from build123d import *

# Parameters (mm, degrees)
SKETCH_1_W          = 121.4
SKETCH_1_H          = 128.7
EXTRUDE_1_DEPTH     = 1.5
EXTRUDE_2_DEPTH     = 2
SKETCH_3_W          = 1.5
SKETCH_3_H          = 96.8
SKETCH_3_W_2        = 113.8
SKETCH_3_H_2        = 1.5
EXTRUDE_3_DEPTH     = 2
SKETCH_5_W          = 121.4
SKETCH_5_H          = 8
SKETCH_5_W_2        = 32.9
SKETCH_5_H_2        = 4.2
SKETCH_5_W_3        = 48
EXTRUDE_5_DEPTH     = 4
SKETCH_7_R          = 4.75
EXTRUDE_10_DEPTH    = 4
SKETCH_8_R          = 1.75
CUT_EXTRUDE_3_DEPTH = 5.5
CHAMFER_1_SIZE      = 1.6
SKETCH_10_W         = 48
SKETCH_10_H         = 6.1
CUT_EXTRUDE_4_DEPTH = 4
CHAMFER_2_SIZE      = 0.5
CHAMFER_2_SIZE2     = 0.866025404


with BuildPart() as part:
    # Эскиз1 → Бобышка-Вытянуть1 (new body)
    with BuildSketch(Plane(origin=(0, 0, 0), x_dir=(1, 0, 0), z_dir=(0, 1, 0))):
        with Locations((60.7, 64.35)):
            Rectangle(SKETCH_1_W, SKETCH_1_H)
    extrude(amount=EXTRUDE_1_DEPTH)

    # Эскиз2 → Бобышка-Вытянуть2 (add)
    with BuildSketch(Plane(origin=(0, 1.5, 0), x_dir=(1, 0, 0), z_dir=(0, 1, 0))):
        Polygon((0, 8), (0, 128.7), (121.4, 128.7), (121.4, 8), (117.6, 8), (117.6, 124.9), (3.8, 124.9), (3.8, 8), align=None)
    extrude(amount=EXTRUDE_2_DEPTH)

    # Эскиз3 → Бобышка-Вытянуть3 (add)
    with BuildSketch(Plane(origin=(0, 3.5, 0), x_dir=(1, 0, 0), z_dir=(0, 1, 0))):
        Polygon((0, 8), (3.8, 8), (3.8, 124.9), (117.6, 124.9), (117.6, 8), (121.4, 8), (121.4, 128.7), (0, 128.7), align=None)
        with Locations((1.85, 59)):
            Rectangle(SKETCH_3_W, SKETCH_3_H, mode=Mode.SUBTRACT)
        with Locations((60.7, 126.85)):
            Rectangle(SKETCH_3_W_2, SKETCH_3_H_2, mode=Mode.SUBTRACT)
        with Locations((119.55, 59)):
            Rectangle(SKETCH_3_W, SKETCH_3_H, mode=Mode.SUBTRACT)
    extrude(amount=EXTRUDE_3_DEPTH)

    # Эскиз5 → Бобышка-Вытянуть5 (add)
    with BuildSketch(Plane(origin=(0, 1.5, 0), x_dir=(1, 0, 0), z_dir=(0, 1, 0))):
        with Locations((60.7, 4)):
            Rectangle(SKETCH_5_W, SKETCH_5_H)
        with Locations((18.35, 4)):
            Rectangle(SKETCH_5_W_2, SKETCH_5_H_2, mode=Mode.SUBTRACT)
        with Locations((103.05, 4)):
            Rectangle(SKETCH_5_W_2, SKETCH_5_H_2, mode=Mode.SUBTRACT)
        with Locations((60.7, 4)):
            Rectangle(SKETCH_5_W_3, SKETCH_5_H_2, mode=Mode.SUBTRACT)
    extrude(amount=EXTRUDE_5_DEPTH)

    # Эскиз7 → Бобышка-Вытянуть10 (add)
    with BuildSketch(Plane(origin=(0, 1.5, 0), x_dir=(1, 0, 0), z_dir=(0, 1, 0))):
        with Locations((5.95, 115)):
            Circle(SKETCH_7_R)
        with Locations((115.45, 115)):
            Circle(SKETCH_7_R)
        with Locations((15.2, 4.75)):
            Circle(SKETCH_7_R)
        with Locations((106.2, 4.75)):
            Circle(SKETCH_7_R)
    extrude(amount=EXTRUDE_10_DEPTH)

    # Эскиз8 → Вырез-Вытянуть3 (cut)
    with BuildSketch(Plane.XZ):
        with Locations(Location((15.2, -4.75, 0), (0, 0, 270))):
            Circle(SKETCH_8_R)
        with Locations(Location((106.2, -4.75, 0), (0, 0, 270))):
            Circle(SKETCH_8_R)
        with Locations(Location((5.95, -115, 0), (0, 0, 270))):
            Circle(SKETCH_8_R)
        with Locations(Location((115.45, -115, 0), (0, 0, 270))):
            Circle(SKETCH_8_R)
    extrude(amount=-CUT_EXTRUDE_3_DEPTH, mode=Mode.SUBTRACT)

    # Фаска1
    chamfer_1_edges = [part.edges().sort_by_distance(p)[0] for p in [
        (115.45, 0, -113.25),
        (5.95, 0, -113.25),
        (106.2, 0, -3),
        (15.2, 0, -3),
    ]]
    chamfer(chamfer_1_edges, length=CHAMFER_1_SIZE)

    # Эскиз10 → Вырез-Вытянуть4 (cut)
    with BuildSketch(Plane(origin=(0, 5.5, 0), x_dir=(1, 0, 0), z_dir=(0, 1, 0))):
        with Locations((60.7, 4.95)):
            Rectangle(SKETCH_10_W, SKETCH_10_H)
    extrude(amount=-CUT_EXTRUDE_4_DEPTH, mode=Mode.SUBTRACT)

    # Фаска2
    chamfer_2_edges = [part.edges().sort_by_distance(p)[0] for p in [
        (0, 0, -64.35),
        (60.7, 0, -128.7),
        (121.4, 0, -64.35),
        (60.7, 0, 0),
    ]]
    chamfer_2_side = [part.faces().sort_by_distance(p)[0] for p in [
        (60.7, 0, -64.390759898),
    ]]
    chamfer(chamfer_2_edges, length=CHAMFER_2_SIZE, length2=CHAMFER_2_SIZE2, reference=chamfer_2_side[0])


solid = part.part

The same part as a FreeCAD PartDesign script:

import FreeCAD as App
import Part
import Sketcher
from FreeCAD import Vector


def edges_at(feature, points):
    """Names of the edges that pass closest to the given points."""
    edges = feature.Shape.Edges
    near = lambda p: min(range(len(edges)), key=lambda i: edges[i].distToShape(Part.Vertex(*p))[0])
    return sorted({f"Edge{near(p) + 1}" for p in points})

doc = App.newDocument("Part")
body = doc.addObject("PartDesign::Body", "Body")

# Sketch on XZ plane
sketch1 = body.newObject("Sketcher::SketchObject", "Sketch")
sketch1.AttachmentSupport = (doc.getObject("XZ_Plane"), [""])
sketch1.MapMode = "FlatFace"
sketch1.addGeometry(Part.LineSegment(Vector(0, -129, 0), Vector(0, 0, 0)), False)
sketch1.addGeometry(Part.LineSegment(Vector(0, 0, 0), Vector(121, 0, 0)), False)
sketch1.addGeometry(Part.LineSegment(Vector(121, 0, 0), Vector(121, -129, 0)), False)
sketch1.addGeometry(Part.LineSegment(Vector(121, -129, 0), Vector(0, -129, 0)), False)
sketch1.addConstraint(Sketcher.Constraint("Coincident", 0, 2, 1, 1))
sketch1.addConstraint(Sketcher.Constraint("Coincident", 1, 2, 2, 1))
sketch1.addConstraint(Sketcher.Constraint("Coincident", 2, 2, 3, 1))
sketch1.addConstraint(Sketcher.Constraint("Coincident", 3, 2, 0, 1))
sketch1.addConstraint(Sketcher.Constraint("Vertical", 0))
sketch1.addConstraint(Sketcher.Constraint("Horizontal", 1))
sketch1.addConstraint(Sketcher.Constraint("Vertical", 2))
sketch1.addConstraint(Sketcher.Constraint("Horizontal", 3))
sketch1.addConstraint(Sketcher.Constraint("Coincident", 0, 2, -1, 1))
sketch1.addConstraint(Sketcher.Constraint("DistanceX", 1, 1, 1, 2, 121.4))
sketch1.addConstraint(Sketcher.Constraint("DistanceY", 0, 1, 0, 2, 128.7))
pad1 = body.newObject("PartDesign::Pad", "Pad")
pad1.Profile = sketch1
pad1.Length = 1.5
pad1.Reversed = True

# Sketch on XZ plane
sketch2 = body.newObject("Sketcher::SketchObject", "Sketch001")
sketch2.AttachmentSupport = (doc.getObject("XZ_Plane"), [""])
sketch2.MapMode = "FlatFace"
sketch2.AttachmentOffset = App.Placement(Vector(0, 0, -1.5), App.Rotation())
sketch2.addGeometry(Part.LineSegment(Vector(0, -128.7, 0), Vector(0, -8, 0)), False)
sketch2.addGeometry(Part.LineSegment(Vector(0, -8, 0), Vector(3.8, -8, 0)), False)
sketch2.addGeometry(Part.LineSegment(Vector(3.8, -8, 0), Vector(3.8, -124.9, 0)), False)
sketch2.addGeometry(Part.LineSegment(Vector(3.8, -124.9, 0), Vector(117.6, -124.9, 0)), False)
sketch2.addGeometry(Part.LineSegment(Vector(117.6, -124.9, 0), Vector(117.6, -8, 0)), False)
sketch2.addGeometry(Part.LineSegment(Vector(117.6, -8, 0), Vector(121.4, -8, 0)), False)
sketch2.addGeometry(Part.LineSegment(Vector(121.4, -8, 0), Vector(121.4, -128.7, 0)), False)
sketch2.addGeometry(Part.LineSegment(Vector(121.4, -128.7, 0), Vector(0, -128.7, 0)), False)
sketch2.addConstraint(Sketcher.Constraint("Coincident", 0, 2, 1, 1))
sketch2.addConstraint(Sketcher.Constraint("Coincident", 1, 2, 2, 1))
sketch2.addConstraint(Sketcher.Constraint("Coincident", 2, 2, 3, 1))
sketch2.addConstraint(Sketcher.Constraint("Coincident", 3, 2, 4, 1))
sketch2.addConstraint(Sketcher.Constraint("Coincident", 4, 2, 5, 1))
sketch2.addConstraint(Sketcher.Constraint("Coincident", 5, 2, 6, 1))
sketch2.addConstraint(Sketcher.Constraint("Coincident", 6, 2, 7, 1))
sketch2.addConstraint(Sketcher.Constraint("Coincident", 7, 2, 0, 1))
sketch2.addConstraint(Sketcher.Constraint("Vertical", 0))
sketch2.addConstraint(Sketcher.Constraint("Horizontal", 1))
sketch2.addConstraint(Sketcher.Constraint("Vertical", 2))
sketch2.addConstraint(Sketcher.Constraint("Horizontal", 3))
sketch2.addConstraint(Sketcher.Constraint("Vertical", 4))
sketch2.addConstraint(Sketcher.Constraint("Horizontal", 5))
sketch2.addConstraint(Sketcher.Constraint("Vertical", 6))
sketch2.addConstraint(Sketcher.Constraint("Horizontal", 7))
sketch2.addConstraint(Sketcher.Constraint("PointOnObject", 0, 2, -2))
sketch2.addConstraint(Sketcher.Constraint("Horizontal", 1, 2, 4, 2))
sketch2.addConstraint(Sketcher.Constraint("Equal", 1, 5))
sketch2.addConstraint(Sketcher.Constraint("DistanceX", 1, 1, 1, 2, 3.8))
sketch2.addConstraint(Sketcher.Constraint("DistanceX", 3, 1, 3, 2, 113.8))
sketch2.addConstraint(Sketcher.Constraint("DistanceY", 0, 1, 0, 2, 120.7))
sketch2.addConstraint(Sketcher.Constraint("DistanceY", 2, 2, 2, 1, 116.9))
sketch2.addConstraint(Sketcher.Constraint("DistanceY", 0, 2, -1, 1, 8.0))
pad2 = body.newObject("PartDesign::Pad", "Pad001")
pad2.Profile = sketch2
pad2.Length = 2
pad2.Reversed = True

# Sketch on XZ plane
sketch3 = body.newObject("Sketcher::SketchObject", "Sketch002")
sketch3.AttachmentSupport = (doc.getObject("XZ_Plane"), [""])
sketch3.MapMode = "FlatFace"
sketch3.AttachmentOffset = App.Placement(Vector(0, 0, -3.5), App.Rotation())
sketch3.addGeometry(Part.LineSegment(Vector(0, -8, 0), Vector(3.8, -8, 0)), False)
sketch3.addGeometry(Part.LineSegment(Vector(3.8, -8, 0), Vector(3.8, -124.9, 0)), False)
sketch3.addGeometry(Part.LineSegment(Vector(3.8, -124.9, 0), Vector(117.6, -124.9, 0)), False)
sketch3.addGeometry(Part.LineSegment(Vector(117.6, -124.9, 0), Vector(117.6, -8, 0)), False)
sketch3.addGeometry(Part.LineSegment(Vector(117.6, -8, 0), Vector(121.4, -8, 0)), False)
sketch3.addGeometry(Part.LineSegment(Vector(121.4, -8, 0), Vector(121.4, -128.7, 0)), False)
sketch3.addGeometry(Part.LineSegment(Vector(121.4, -128.7, 0), Vector(0, -128.7, 0)), False)
sketch3.addGeometry(Part.LineSegment(Vector(0, -128.7, 0), Vector(0, -8, 0)), False)
sketch3.addGeometry(Part.LineSegment(Vector(2.6, -10.6, 0), Vector(1.1, -10.6, 0)), False)
sketch3.addGeometry(Part.LineSegment(Vector(1.1, -10.6, 0), Vector(1.1, -107.4, 0)), False)
sketch3.addGeometry(Part.LineSegment(Vector(1.1, -107.4, 0), Vector(2.6, -107.4, 0)), False)
sketch3.addGeometry(Part.LineSegment(Vector(2.6, -107.4, 0), Vector(2.6, -10.6, 0)), False)
sketch3.addGeometry(Part.LineSegment(Vector(120.3, -10.6, 0), Vector(118.8, -10.6, 0)), False)
sketch3.addGeometry(Part.LineSegment(Vector(118.8, -10.6, 0), Vector(118.8, -107.4, 0)), False)
sketch3.addGeometry(Part.LineSegment(Vector(118.8, -107.4, 0), Vector(120.3, -107.4, 0)), False)
sketch3.addGeometry(Part.LineSegment(Vector(120.3, -107.4, 0), Vector(120.3, -10.6, 0)), False)
sketch3.addGeometry(Part.LineSegment(Vector(117.6, -126.1, 0), Vector(3.8, -126.1, 0)), False)
sketch3.addGeometry(Part.LineSegment(Vector(3.8, -126.1, 0), Vector(3.8, -127.6, 0)), False)
sketch3.addGeometry(Part.LineSegment(Vector(3.8, -127.6, 0), Vector(117.6, -127.6, 0)), False)
sketch3.addGeometry(Part.LineSegment(Vector(117.6, -127.6, 0), Vector(117.6, -126.1, 0)), False)
sketch3.addConstraint(Sketcher.Constraint("Coincident", 0, 2, 1, 1))
sketch3.addConstraint(Sketcher.Constraint("Coincident", 1, 2, 2, 1))
sketch3.addConstraint(Sketcher.Constraint("Coincident", 2, 2, 3, 1))
sketch3.addConstraint(Sketcher.Constraint("Coincident", 3, 2, 4, 1))
sketch3.addConstraint(Sketcher.Constraint("Coincident", 4, 2, 5, 1))
sketch3.addConstraint(Sketcher.Constraint("Coincident", 5, 2, 6, 1))
sketch3.addConstraint(Sketcher.Constraint("Coincident", 6, 2, 7, 1))
sketch3.addConstraint(Sketcher.Constraint("Coincident", 7, 2, 0, 1))
sketch3.addConstraint(Sketcher.Constraint("Coincident", 8, 2, 9, 1))
sketch3.addConstraint(Sketcher.Constraint("Coincident", 9, 2, 10, 1))
sketch3.addConstraint(Sketcher.Constraint("Coincident", 10, 2, 11, 1))
sketch3.addConstraint(Sketcher.Constraint("Coincident", 11, 2, 8, 1))
sketch3.addConstraint(Sketcher.Constraint("Coincident", 12, 2, 13, 1))
sketch3.addConstraint(Sketcher.Constraint("Coincident", 13, 2, 14, 1))
sketch3.addConstraint(Sketcher.Constraint("Coincident", 14, 2, 15, 1))
sketch3.addConstraint(Sketcher.Constraint("Coincident", 15, 2, 12, 1))
sketch3.addConstraint(Sketcher.Constraint("Coincident", 16, 2, 17, 1))
sketch3.addConstraint(Sketcher.Constraint("Coincident", 17, 2, 18, 1))
sketch3.addConstraint(Sketcher.Constraint("Coincident", 18, 2, 19, 1))
sketch3.addConstraint(Sketcher.Constraint("Coincident", 19, 2, 16, 1))
sketch3.addConstraint(Sketcher.Constraint("Horizontal", 0))
sketch3.addConstraint(Sketcher.Constraint("Vertical", 1))
sketch3.addConstraint(Sketcher.Constraint("Horizontal", 2))
sketch3.addConstraint(Sketcher.Constraint("Vertical", 3))
sketch3.addConstraint(Sketcher.Constraint("Horizontal", 4))
sketch3.addConstraint(Sketcher.Constraint("Vertical", 5))
sketch3.addConstraint(Sketcher.Constraint("Horizontal", 6))
sketch3.addConstraint(Sketcher.Constraint("Vertical", 7))
sketch3.addConstraint(Sketcher.Constraint("Horizontal", 8))
sketch3.addConstraint(Sketcher.Constraint("Vertical", 9))
sketch3.addConstraint(Sketcher.Constraint("Horizontal", 10))
sketch3.addConstraint(Sketcher.Constraint("Vertical", 11))
sketch3.addConstraint(Sketcher.Constraint("Horizontal", 12))
sketch3.addConstraint(Sketcher.Constraint("Vertical", 13))
sketch3.addConstraint(Sketcher.Constraint("Horizontal", 14))
sketch3.addConstraint(Sketcher.Constraint("Vertical", 15))
sketch3.addConstraint(Sketcher.Constraint("Horizontal", 16))
sketch3.addConstraint(Sketcher.Constraint("Vertical", 17))
sketch3.addConstraint(Sketcher.Constraint("Horizontal", 18))
sketch3.addConstraint(Sketcher.Constraint("Vertical", 19))
sketch3.addConstraint(Sketcher.Constraint("PointOnObject", 6, 2, -2))
sketch3.addConstraint(Sketcher.Constraint("Horizontal", 0, 2, 3, 2))
sketch3.addConstraint(Sketcher.Constraint("Horizontal", 11, 2, 12, 2))
sketch3.addConstraint(Sketcher.Constraint("Horizontal", 10, 2, 13, 2))
sketch3.addConstraint(Sketcher.Constraint("Vertical", 1, 2, 16, 2))
sketch3.addConstraint(Sketcher.Constraint("Vertical", 3, 2, 18, 2))
sketch3.addConstraint(Sketcher.Constraint("Equal", 0, 4))
sketch3.addConstraint(Sketcher.Constraint("Equal", 10, 12))
sketch3.addConstraint(Sketcher.Constraint("Equal", 14, 17))
sketch3.addConstraint(Sketcher.Constraint("DistanceX", 0, 1, 0, 2, 3.8))
sketch3.addConstraint(Sketcher.Constraint("DistanceX", 2, 1, 2, 2, 113.8))
sketch3.addConstraint(Sketcher.Constraint("DistanceX", 8, 2, 8, 1, 1.5))
sketch3.addConstraint(Sketcher.Constraint("DistanceY", 1, 2, 1, 1, 116.9))
sketch3.addConstraint(Sketcher.Constraint("DistanceY", 5, 2, 5, 1, 120.7))
sketch3.addConstraint(Sketcher.Constraint("DistanceY", 9, 2, 9, 1, 96.8))
sketch3.addConstraint(Sketcher.Constraint("DistanceY", 0, 2, -1, 1, 8.0))
sketch3.addConstraint(Sketcher.Constraint("DistanceX", 0, 2, 12, 2, 115.0))
sketch3.addConstraint(Sketcher.Constraint("DistanceX", -1, 1, 8, 2, 1.1))
sketch3.addConstraint(Sketcher.Constraint("DistanceY", 8, 2, -1, 1, 10.6))
sketch3.addConstraint(Sketcher.Constraint("DistanceY", 16, 2, -1, 1, 126.1))
pad3 = body.newObject("PartDesign::Pad", "Pad002")
pad3.Profile = sketch3
pad3.Length = 2
pad3.Reversed = True

# Sketch on XZ plane
sketch4 = body.newObject("Sketcher::SketchObject", "Sketch003")
sketch4.AttachmentSupport = (doc.getObject("XZ_Plane"), [""])
sketch4.MapMode = "FlatFace"
sketch4.AttachmentOffset = App.Placement(Vector(0, 0, -1.5), App.Rotation())
sketch4.addGeometry(Part.LineSegment(Vector(0, -8, 0), Vector(0, 0, 0)), False)
sketch4.addGeometry(Part.LineSegment(Vector(0, 0, 0), Vector(121.4, 0, 0)), False)
sketch4.addGeometry(Part.LineSegment(Vector(121.4, 0, 0), Vector(121.4, -8, 0)), False)
sketch4.addGeometry(Part.LineSegment(Vector(121.4, -8, 0), Vector(0, -8, 0)), False)
sketch4.addGeometry(Part.LineSegment(Vector(34.8, -1.9, 0), Vector(1.9, -1.9, 0)), False)
sketch4.addGeometry(Part.LineSegment(Vector(1.9, -1.9, 0), Vector(1.9, -6.1, 0)), False)
sketch4.addGeometry(Part.LineSegment(Vector(1.9, -6.1, 0), Vector(34.8, -6.1, 0)), False)
sketch4.addGeometry(Part.LineSegment(Vector(34.8, -6.1, 0), Vector(34.8, -1.9, 0)), False)
sketch4.addGeometry(Part.LineSegment(Vector(84.7, -1.9, 0), Vector(36.7, -1.9, 0)), False)
sketch4.addGeometry(Part.LineSegment(Vector(36.7, -1.9, 0), Vector(36.7, -6.1, 0)), False)
sketch4.addGeometry(Part.LineSegment(Vector(36.7, -6.1, 0), Vector(84.7, -6.1, 0)), False)
sketch4.addGeometry(Part.LineSegment(Vector(84.7, -6.1, 0), Vector(84.7, -1.9, 0)), False)
sketch4.addGeometry(Part.LineSegment(Vector(119.5, -1.9, 0), Vector(86.6, -1.9, 0)), False)
sketch4.addGeometry(Part.LineSegment(Vector(86.6, -1.9, 0), Vector(86.6, -6.1, 0)), False)
sketch4.addGeometry(Part.LineSegment(Vector(86.6, -6.1, 0), Vector(119.5, -6.1, 0)), False)
sketch4.addGeometry(Part.LineSegment(Vector(119.5, -6.1, 0), Vector(119.5, -1.9, 0)), False)
sketch4.addConstraint(Sketcher.Constraint("Coincident", 0, 2, 1, 1))
sketch4.addConstraint(Sketcher.Constraint("Coincident", 1, 2, 2, 1))
sketch4.addConstraint(Sketcher.Constraint("Coincident", 2, 2, 3, 1))
sketch4.addConstraint(Sketcher.Constraint("Coincident", 3, 2, 0, 1))
sketch4.addConstraint(Sketcher.Constraint("Coincident", 4, 2, 5, 1))
sketch4.addConstraint(Sketcher.Constraint("Coincident", 5, 2, 6, 1))
sketch4.addConstraint(Sketcher.Constraint("Coincident", 6, 2, 7, 1))
sketch4.addConstraint(Sketcher.Constraint("Coincident", 7, 2, 4, 1))
sketch4.addConstraint(Sketcher.Constraint("Coincident", 8, 2, 9, 1))
sketch4.addConstraint(Sketcher.Constraint("Coincident", 9, 2, 10, 1))
sketch4.addConstraint(Sketcher.Constraint("Coincident", 10, 2, 11, 1))
sketch4.addConstraint(Sketcher.Constraint("Coincident", 11, 2, 8, 1))
sketch4.addConstraint(Sketcher.Constraint("Coincident", 12, 2, 13, 1))
sketch4.addConstraint(Sketcher.Constraint("Coincident", 13, 2, 14, 1))
sketch4.addConstraint(Sketcher.Constraint("Coincident", 14, 2, 15, 1))
sketch4.addConstraint(Sketcher.Constraint("Coincident", 15, 2, 12, 1))
sketch4.addConstraint(Sketcher.Constraint("Vertical", 0))
sketch4.addConstraint(Sketcher.Constraint("Horizontal", 1))
sketch4.addConstraint(Sketcher.Constraint("Vertical", 2))
sketch4.addConstraint(Sketcher.Constraint("Horizontal", 3))
sketch4.addConstraint(Sketcher.Constraint("Horizontal", 4))
sketch4.addConstraint(Sketcher.Constraint("Vertical", 5))
sketch4.addConstraint(Sketcher.Constraint("Horizontal", 6))
sketch4.addConstraint(Sketcher.Constraint("Vertical", 7))
sketch4.addConstraint(Sketcher.Constraint("Horizontal", 8))
sketch4.addConstraint(Sketcher.Constraint("Vertical", 9))
sketch4.addConstraint(Sketcher.Constraint("Horizontal", 10))
sketch4.addConstraint(Sketcher.Constraint("Vertical", 11))
sketch4.addConstraint(Sketcher.Constraint("Horizontal", 12))
sketch4.addConstraint(Sketcher.Constraint("Vertical", 13))
sketch4.addConstraint(Sketcher.Constraint("Horizontal", 14))
sketch4.addConstraint(Sketcher.Constraint("Vertical", 15))
sketch4.addConstraint(Sketcher.Constraint("Coincident", 0, 2, -1, 1))
sketch4.addConstraint(Sketcher.Constraint("Horizontal", 7, 2, 8, 2))
sketch4.addConstraint(Sketcher.Constraint("Horizontal", 6, 2, 9, 2))
sketch4.addConstraint(Sketcher.Constraint("Horizontal", 11, 2, 12, 2))
sketch4.addConstraint(Sketcher.Constraint("Horizontal", 10, 2, 13, 2))
sketch4.addConstraint(Sketcher.Constraint("Equal", 6, 12))
sketch4.addConstraint(Sketcher.Constraint("DistanceX", 8, 2, 8, 1, 48.0))
sketch4.addConstraint(Sketcher.Constraint("DistanceY", 0, 1, 0, 2, 8.0))
sketch4.addConstraint(Sketcher.Constraint("DistanceX", 1, 1, 1, 2, 121.4))
sketch4.addConstraint(Sketcher.Constraint("DistanceX", 4, 2, 4, 1, 32.9))
sketch4.addConstraint(Sketcher.Constraint("DistanceY", 5, 2, 5, 1, 4.2))
sketch4.addConstraint(Sketcher.Constraint("DistanceX", -1, 1, 4, 2, 1.9))
sketch4.addConstraint(Sketcher.Constraint("DistanceY", 4, 2, -1, 1, 1.9))
sketch4.addConstraint(Sketcher.Constraint("DistanceX", -1, 1, 8, 2, 36.7))
sketch4.addConstraint(Sketcher.Constraint("DistanceX", -1, 1, 12, 2, 86.6))
pad4 = body.newObject("PartDesign::Pad", "Pad003")
pad4.Profile = sketch4
pad4.Length = 4
pad4.Reversed = True

# Sketch on XZ plane
sketch5 = body.newObject("Sketcher::SketchObject", "Sketch004")
sketch5.AttachmentSupport = (doc.getObject("XZ_Plane"), [""])
sketch5.MapMode = "FlatFace"
sketch5.AttachmentOffset = App.Placement(Vector(0, 0, -1.5), App.Rotation())
sketch5.addGeometry(Part.Circle(Vector(6, -115, 0), Vector(0, 0, 1), 4.8), False)
sketch5.addGeometry(Part.Circle(Vector(115.5, -115, 0), Vector(0, 0, 1), 4.8), False)
sketch5.addGeometry(Part.Circle(Vector(15.2, -4.8, 0), Vector(0, 0, 1), 4.8), False)
sketch5.addGeometry(Part.Circle(Vector(106.2, -4.8, 0), Vector(0, 0, 1), 4.8), False)
sketch5.addConstraint(Sketcher.Constraint("Equal", 0, 1))
sketch5.addConstraint(Sketcher.Constraint("Equal", 1, 2))
sketch5.addConstraint(Sketcher.Constraint("Equal", 2, 3))
sketch5.addConstraint(Sketcher.Constraint("Horizontal", 0, 3, 1, 3))
sketch5.addConstraint(Sketcher.Constraint("Horizontal", 2, 3, 3, 3))
sketch5.addConstraint(Sketcher.Constraint("Diameter", 0, 9.5))
sketch5.addConstraint(Sketcher.Constraint("DistanceY", 0, 3, -1, 1, 115.0))
sketch5.addConstraint(Sketcher.Constraint("DistanceX", 2, 3, 3, 3, 91.0))
sketch5.addConstraint(Sketcher.Constraint("DistanceX", -1, 1, 2, 3, 15.2))
sketch5.addConstraint(Sketcher.Constraint("DistanceX", 0, 3, 1, 3, 109.5))
sketch5.addConstraint(Sketcher.Constraint("DistanceX", -1, 1, 0, 3, 5.95))
sketch5.addConstraint(Sketcher.Constraint("DistanceY", 2, 3, -1, 1, 4.75))
pad5 = body.newObject("PartDesign::Pad", "Pad004")
pad5.Profile = sketch5
pad5.Length = 4
pad5.Reversed = True

# Sketch on XZ plane
sketch6 = body.newObject("Sketcher::SketchObject", "Sketch005")
sketch6.AttachmentSupport = (doc.getObject("XZ_Plane"), [""])
sketch6.MapMode = "FlatFace"
sketch6.addGeometry(Part.Circle(Vector(15.2, -4.8, 0), Vector(0, 0, 1), 1.8), False)
sketch6.addGeometry(Part.Circle(Vector(106.2, -4.8, 0), Vector(0, 0, 1), 1.8), False)
sketch6.addGeometry(Part.Circle(Vector(6, -115, 0), Vector(0, 0, 1), 1.8), False)
sketch6.addGeometry(Part.Circle(Vector(115.5, -115, 0), Vector(0, 0, 1), 1.8), False)
sketch6.addConstraint(Sketcher.Constraint("Equal", 0, 1))
sketch6.addConstraint(Sketcher.Constraint("Equal", 1, 2))
sketch6.addConstraint(Sketcher.Constraint("Equal", 2, 3))
sketch6.addConstraint(Sketcher.Constraint("Horizontal", 0, 3, 1, 3))
sketch6.addConstraint(Sketcher.Constraint("Horizontal", 2, 3, 3, 3))
sketch6.addConstraint(Sketcher.Constraint("Diameter", 0, 3.5))
sketch6.addConstraint(Sketcher.Constraint("DistanceY", 2, 3, -1, 1, 115.0))
sketch6.addConstraint(Sketcher.Constraint("DistanceX", 0, 3, 1, 3, 91.0))
sketch6.addConstraint(Sketcher.Constraint("DistanceX", -1, 1, 0, 3, 15.2))
sketch6.addConstraint(Sketcher.Constraint("DistanceX", 2, 3, 3, 3, 109.5))
sketch6.addConstraint(Sketcher.Constraint("DistanceY", 0, 3, -1, 1, 4.75))
sketch6.addConstraint(Sketcher.Constraint("DistanceX", -1, 1, 2, 3, 5.95))
pocket1 = body.newObject("PartDesign::Pocket", "Pocket")
pocket1.Profile = sketch6
pocket1.Length = 5.5
doc.recompute()

chamfer = body.newObject("PartDesign::Chamfer", "Chamfer")
chamfer.Base = (pocket1, edges_at(pocket1, [
    (115.45, 0, -113.25),
    (5.95, 0, -113.25),
    (106.2, 0, -3),
    (15.2, 0, -3),
]))
chamfer.Size = 1.6

# Sketch on XZ plane
sketch7 = body.newObject("Sketcher::SketchObject", "Sketch006")
sketch7.AttachmentSupport = (doc.getObject("XZ_Plane"), [""])
sketch7.MapMode = "FlatFace"
sketch7.AttachmentOffset = App.Placement(Vector(0, 0, -5.5), App.Rotation())
sketch7.addGeometry(Part.LineSegment(Vector(37, -8, 0), Vector(37, -2, 0)), False)
sketch7.addGeometry(Part.LineSegment(Vector(37, -2, 0), Vector(85, -2, 0)), False)
sketch7.addGeometry(Part.LineSegment(Vector(85, -2, 0), Vector(85, -8, 0)), False)
sketch7.addGeometry(Part.LineSegment(Vector(85, -8, 0), Vector(37, -8, 0)), False)
sketch7.addConstraint(Sketcher.Constraint("Coincident", 0, 2, 1, 1))
sketch7.addConstraint(Sketcher.Constraint("Coincident", 1, 2, 2, 1))
sketch7.addConstraint(Sketcher.Constraint("Coincident", 2, 2, 3, 1))
sketch7.addConstraint(Sketcher.Constraint("Coincident", 3, 2, 0, 1))
sketch7.addConstraint(Sketcher.Constraint("Vertical", 0))
sketch7.addConstraint(Sketcher.Constraint("Horizontal", 1))
sketch7.addConstraint(Sketcher.Constraint("Vertical", 2))
sketch7.addConstraint(Sketcher.Constraint("Horizontal", 3))
sketch7.addConstraint(Sketcher.Constraint("DistanceX", 1, 1, 1, 2, 48.0))
sketch7.addConstraint(Sketcher.Constraint("DistanceY", 0, 1, 0, 2, 6.1))
sketch7.addConstraint(Sketcher.Constraint("DistanceY", 2, 2, -1, 1, 8.0))
sketch7.addConstraint(Sketcher.Constraint("DistanceX", -1, 1, 0, 2, 36.7))
pocket2 = body.newObject("PartDesign::Pocket", "Pocket001")
pocket2.Profile = sketch7
pocket2.Length = 4
pocket2.Reversed = True
doc.recompute()

chamfer2 = body.newObject("PartDesign::Chamfer", "Chamfer001")
chamfer2.Base = (pocket2, edges_at(pocket2, [
    (0, 0, -64.35),
    (60.7, 0, -128.7),
    (121.4, 0, -64.35),
    (60.7, 0, 0),
]))
chamfer2.ChamferType = "Two distances"
chamfer2.Size = 0.5
chamfer2.Size2 = 0.866025

doc.recompute()
